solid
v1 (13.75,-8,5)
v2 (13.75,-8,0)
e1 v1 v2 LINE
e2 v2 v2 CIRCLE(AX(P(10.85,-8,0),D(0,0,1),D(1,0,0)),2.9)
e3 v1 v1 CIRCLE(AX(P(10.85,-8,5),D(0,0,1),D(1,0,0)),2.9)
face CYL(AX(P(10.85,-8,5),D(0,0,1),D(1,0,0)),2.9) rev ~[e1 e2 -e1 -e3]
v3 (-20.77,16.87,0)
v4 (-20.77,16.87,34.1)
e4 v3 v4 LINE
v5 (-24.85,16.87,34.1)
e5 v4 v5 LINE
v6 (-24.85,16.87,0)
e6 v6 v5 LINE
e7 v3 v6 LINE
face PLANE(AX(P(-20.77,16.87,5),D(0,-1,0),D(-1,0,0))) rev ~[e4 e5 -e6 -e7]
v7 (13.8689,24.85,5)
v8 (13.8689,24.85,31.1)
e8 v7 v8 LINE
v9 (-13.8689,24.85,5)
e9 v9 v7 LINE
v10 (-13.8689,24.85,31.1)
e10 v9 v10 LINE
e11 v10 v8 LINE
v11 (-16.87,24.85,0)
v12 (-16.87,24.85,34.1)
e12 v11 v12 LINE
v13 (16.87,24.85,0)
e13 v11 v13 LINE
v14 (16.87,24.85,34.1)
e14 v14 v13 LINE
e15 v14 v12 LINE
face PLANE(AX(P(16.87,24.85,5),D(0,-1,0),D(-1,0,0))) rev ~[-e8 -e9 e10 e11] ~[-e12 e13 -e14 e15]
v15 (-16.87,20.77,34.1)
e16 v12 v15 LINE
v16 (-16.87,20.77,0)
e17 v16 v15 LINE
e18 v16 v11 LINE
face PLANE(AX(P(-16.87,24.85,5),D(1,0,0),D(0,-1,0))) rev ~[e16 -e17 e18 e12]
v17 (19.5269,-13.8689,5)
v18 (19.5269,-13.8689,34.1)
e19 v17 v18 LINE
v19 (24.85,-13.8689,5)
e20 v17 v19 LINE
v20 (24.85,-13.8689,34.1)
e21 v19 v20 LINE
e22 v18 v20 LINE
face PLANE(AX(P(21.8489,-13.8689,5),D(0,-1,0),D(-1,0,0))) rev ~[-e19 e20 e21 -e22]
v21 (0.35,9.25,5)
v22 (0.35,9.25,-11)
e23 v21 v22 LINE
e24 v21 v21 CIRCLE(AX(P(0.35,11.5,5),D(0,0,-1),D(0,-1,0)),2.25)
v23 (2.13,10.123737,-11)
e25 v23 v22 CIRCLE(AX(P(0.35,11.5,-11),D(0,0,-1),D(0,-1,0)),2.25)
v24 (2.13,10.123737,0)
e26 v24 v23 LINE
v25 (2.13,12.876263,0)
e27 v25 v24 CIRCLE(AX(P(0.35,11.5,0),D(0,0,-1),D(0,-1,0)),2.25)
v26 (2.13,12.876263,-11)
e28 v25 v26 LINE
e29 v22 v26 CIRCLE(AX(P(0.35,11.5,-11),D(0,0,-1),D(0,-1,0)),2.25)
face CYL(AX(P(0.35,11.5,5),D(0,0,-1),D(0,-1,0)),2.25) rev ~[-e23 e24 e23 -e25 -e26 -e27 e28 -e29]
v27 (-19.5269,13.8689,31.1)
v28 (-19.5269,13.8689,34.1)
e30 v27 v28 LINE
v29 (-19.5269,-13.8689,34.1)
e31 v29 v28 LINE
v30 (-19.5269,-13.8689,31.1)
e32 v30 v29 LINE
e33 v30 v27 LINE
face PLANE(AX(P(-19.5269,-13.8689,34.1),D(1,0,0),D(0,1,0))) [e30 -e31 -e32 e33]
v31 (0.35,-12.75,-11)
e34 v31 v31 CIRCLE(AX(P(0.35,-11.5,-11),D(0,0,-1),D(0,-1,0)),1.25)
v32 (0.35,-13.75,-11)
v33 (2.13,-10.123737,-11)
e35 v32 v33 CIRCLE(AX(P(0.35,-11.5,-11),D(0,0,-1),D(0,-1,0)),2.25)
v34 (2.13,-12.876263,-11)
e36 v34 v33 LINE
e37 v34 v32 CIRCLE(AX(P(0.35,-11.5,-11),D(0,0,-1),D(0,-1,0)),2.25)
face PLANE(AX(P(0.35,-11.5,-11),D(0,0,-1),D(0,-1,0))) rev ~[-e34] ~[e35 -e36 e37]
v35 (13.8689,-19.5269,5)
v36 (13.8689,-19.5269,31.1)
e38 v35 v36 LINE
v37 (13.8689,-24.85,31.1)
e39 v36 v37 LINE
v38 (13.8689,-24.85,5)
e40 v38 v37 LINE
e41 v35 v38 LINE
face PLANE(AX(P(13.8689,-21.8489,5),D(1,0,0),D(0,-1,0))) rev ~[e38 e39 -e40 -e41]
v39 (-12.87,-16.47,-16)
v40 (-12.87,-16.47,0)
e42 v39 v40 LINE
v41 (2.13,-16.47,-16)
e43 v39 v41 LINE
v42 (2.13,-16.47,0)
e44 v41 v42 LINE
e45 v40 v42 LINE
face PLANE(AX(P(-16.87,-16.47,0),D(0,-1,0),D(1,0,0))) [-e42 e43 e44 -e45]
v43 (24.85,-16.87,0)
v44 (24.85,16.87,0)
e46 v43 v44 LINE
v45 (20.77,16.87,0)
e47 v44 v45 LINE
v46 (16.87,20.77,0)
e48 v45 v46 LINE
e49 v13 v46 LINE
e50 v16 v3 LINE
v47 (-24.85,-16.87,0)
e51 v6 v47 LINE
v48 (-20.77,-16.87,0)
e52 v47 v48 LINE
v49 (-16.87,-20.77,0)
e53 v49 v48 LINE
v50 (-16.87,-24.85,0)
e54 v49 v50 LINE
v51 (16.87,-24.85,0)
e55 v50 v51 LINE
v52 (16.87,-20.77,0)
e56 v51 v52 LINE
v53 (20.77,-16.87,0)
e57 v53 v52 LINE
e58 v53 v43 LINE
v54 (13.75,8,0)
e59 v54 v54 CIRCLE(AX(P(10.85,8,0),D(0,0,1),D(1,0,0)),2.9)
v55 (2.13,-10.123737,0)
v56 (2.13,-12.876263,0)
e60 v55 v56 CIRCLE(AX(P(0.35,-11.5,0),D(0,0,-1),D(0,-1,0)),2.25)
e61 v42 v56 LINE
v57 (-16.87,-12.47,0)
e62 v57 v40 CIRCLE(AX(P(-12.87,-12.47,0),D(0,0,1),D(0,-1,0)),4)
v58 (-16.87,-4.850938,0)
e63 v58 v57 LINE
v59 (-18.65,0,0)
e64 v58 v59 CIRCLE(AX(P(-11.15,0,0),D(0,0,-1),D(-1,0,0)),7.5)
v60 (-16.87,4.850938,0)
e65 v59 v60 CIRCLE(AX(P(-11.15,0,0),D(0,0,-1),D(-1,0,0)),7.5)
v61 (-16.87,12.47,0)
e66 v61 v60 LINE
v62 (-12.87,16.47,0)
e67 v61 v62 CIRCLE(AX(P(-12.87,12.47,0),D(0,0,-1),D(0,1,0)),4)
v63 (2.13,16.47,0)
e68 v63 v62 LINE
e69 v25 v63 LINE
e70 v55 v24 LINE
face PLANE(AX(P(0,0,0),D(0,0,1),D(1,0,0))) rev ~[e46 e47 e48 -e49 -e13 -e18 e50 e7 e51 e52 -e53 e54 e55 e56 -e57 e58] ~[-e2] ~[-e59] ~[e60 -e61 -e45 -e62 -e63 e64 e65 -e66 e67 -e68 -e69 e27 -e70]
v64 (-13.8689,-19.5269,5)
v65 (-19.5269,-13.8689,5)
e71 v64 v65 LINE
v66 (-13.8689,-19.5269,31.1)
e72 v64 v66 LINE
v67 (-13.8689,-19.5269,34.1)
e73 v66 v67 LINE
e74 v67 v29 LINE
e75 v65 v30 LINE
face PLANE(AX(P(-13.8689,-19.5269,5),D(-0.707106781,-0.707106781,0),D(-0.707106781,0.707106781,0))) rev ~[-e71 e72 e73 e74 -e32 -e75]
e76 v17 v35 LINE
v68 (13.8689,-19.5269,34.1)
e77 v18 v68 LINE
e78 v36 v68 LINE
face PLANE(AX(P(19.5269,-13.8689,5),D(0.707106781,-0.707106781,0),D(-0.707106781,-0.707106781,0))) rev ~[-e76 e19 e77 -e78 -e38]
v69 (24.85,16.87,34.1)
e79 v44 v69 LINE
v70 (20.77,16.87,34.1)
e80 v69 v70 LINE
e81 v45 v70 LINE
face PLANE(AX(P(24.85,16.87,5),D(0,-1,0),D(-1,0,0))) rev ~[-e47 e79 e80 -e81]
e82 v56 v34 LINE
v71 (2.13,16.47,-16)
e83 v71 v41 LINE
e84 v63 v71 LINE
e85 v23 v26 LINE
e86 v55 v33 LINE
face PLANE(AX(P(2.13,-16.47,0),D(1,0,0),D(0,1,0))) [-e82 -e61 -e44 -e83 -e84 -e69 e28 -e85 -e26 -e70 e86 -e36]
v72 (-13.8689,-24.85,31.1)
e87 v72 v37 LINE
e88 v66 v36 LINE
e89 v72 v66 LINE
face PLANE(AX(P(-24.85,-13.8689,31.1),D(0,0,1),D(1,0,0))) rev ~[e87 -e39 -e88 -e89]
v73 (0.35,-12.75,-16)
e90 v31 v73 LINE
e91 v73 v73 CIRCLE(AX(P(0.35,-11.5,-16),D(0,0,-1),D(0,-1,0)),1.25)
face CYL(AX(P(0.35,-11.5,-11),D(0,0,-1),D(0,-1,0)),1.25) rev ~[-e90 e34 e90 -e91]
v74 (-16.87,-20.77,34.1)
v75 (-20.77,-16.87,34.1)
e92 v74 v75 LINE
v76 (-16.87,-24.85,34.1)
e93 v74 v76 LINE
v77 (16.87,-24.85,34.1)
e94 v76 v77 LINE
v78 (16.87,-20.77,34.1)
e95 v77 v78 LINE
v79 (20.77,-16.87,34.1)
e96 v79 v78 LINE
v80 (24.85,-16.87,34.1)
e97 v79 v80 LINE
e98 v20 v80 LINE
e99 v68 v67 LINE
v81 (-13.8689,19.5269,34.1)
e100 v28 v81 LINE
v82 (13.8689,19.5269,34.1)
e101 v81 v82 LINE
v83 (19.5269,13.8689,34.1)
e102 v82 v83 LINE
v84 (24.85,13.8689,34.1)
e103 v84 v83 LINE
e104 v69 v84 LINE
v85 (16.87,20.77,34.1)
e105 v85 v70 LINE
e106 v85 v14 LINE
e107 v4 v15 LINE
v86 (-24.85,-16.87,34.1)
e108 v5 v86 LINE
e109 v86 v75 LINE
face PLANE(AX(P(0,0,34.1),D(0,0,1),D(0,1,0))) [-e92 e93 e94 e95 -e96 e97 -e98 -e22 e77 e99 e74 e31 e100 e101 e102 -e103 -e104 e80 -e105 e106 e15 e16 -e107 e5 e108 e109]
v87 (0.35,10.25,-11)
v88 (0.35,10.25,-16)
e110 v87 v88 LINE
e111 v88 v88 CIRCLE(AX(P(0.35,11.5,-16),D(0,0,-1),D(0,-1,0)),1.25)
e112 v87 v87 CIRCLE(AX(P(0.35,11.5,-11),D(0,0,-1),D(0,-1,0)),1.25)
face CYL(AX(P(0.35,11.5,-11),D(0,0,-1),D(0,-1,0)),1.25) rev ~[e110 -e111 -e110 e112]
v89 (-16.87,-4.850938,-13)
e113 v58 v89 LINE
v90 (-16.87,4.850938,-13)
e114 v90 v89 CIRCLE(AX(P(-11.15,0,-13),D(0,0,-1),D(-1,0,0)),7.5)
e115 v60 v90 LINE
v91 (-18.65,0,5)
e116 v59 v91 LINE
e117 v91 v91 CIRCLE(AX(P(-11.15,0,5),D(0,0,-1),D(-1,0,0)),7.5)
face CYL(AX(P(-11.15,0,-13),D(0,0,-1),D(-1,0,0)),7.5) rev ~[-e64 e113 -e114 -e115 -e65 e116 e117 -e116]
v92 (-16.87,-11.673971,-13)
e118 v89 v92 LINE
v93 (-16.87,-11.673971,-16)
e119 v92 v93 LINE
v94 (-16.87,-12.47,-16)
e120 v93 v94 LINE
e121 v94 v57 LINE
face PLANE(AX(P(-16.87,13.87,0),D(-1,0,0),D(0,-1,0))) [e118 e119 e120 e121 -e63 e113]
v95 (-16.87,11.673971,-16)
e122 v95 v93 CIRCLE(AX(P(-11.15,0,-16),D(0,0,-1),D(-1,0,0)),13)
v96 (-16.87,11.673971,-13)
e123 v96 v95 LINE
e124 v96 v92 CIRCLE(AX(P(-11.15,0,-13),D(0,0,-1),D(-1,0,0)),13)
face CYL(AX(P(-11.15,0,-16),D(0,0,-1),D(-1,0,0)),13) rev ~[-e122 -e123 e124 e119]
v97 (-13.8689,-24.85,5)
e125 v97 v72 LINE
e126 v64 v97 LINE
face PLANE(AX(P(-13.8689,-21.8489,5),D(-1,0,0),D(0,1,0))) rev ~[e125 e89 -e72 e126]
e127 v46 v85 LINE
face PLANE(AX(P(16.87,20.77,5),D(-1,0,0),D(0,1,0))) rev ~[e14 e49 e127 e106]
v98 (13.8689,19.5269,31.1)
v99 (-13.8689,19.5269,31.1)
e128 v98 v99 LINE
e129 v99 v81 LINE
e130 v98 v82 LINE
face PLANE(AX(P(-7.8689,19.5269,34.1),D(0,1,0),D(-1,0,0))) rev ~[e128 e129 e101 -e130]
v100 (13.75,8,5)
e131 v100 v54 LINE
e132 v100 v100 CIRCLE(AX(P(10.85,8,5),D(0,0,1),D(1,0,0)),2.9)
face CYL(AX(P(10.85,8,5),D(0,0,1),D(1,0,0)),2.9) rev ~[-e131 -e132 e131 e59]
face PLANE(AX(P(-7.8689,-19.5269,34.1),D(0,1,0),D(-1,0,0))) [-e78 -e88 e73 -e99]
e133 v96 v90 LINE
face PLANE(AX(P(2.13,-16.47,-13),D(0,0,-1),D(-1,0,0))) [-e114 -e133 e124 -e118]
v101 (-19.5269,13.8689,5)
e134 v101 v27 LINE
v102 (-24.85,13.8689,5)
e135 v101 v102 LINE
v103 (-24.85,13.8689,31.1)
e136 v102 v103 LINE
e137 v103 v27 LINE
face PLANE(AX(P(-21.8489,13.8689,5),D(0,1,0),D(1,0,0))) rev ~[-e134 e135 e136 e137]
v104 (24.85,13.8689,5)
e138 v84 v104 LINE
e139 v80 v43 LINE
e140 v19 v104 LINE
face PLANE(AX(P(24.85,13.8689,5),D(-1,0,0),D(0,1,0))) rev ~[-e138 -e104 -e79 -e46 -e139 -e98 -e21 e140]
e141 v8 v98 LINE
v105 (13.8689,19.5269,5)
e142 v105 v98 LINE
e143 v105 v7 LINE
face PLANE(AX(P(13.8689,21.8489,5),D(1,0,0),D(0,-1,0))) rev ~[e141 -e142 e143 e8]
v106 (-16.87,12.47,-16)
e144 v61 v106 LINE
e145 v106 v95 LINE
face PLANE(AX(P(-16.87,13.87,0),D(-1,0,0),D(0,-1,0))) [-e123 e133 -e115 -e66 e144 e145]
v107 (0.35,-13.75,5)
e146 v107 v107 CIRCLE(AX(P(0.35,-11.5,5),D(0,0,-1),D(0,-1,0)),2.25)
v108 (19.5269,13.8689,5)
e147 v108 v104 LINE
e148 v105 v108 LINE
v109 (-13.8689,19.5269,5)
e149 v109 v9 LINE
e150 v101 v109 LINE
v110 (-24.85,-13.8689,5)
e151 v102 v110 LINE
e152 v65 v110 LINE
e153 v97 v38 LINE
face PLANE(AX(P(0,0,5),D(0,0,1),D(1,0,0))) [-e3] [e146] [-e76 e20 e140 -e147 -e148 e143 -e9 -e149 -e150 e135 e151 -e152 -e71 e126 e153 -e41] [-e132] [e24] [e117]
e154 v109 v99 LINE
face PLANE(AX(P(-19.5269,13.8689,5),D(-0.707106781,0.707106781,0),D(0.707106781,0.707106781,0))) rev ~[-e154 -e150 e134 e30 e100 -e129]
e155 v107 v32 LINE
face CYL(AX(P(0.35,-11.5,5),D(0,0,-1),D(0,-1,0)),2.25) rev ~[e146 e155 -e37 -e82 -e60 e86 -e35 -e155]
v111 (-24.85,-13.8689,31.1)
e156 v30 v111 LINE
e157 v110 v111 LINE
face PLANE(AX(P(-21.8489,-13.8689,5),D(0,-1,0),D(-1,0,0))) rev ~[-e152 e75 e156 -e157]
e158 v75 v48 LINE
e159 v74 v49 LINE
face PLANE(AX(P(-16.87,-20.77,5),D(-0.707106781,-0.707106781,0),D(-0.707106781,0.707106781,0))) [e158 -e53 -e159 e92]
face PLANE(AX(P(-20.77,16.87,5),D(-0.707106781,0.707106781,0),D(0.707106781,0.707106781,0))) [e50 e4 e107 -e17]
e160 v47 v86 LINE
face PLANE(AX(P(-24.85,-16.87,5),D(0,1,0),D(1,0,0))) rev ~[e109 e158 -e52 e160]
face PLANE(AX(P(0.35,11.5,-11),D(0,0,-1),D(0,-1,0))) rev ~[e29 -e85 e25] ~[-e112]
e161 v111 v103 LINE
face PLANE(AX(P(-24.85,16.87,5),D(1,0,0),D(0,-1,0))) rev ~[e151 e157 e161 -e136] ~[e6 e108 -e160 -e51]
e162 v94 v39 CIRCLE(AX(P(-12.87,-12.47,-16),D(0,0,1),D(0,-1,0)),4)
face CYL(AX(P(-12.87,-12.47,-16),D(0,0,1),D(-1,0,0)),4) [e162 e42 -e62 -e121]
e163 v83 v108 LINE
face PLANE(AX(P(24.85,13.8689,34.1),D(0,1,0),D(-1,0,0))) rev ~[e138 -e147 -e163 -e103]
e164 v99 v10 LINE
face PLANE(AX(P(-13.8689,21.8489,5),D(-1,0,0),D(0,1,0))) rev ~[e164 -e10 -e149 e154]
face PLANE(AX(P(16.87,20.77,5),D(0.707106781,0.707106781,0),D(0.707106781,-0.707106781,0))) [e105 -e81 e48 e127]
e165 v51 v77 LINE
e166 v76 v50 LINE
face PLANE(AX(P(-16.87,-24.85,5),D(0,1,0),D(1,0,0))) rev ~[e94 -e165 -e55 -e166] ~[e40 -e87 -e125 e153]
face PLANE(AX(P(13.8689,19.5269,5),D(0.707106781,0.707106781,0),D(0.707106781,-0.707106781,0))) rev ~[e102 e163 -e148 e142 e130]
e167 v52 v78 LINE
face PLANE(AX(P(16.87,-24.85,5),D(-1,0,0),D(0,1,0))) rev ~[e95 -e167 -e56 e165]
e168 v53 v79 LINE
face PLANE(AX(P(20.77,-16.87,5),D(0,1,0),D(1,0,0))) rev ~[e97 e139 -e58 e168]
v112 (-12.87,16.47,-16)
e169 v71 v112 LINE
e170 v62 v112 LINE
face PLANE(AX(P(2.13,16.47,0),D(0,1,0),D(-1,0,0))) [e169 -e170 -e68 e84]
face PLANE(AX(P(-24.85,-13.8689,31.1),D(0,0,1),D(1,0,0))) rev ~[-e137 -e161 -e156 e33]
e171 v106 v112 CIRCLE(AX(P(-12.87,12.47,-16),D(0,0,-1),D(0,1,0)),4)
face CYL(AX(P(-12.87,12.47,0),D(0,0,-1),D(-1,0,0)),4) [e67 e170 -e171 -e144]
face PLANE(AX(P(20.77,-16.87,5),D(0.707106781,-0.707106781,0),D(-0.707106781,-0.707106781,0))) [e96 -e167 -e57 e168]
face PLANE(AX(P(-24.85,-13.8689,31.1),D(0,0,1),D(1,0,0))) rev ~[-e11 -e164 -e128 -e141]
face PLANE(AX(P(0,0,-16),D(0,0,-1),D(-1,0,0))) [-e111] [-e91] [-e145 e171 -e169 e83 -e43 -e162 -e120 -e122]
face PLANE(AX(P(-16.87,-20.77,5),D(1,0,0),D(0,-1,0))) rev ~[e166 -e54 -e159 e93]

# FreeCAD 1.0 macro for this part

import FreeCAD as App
import Part
import Sketcher
from FreeCAD import Vector
Q = App.Units.Quantity


def edges_at(feature, points):
    """Names of the edges that pass closest to the given points."""
    edges = feature.Shape.Edges
    near = lambda p: min(range(len(edges)), key=lambda i: edges[i].distToShape(Part.Vertex(*p))[0])
    return sorted({f"Edge{near(p) + 1}" for p in points})


def add_polygon(sketch, points):
    """Adds a closed chain of lines whose ends are joined by coincident constraints."""
    first, n = sketch.GeometryCount, len(points)
    for a, b in zip(points, points[1:] + points[:1]):
        sketch.addGeometry(Part.LineSegment(App.Vector(*a, 0), App.Vector(*b, 0)), False)
    for i in range(n):
        sketch.addConstraint(Sketcher.Constraint("Coincident", first + i, 2, first + (i + 1) % n, 1))

doc = App.newDocument("Part")
params = doc.addObject("Spreadsheet::Sheet", "Params")
for row, (alias, value) in enumerate([
    ("sketch1_width", "7.98 mm"),
    ("sketch1_width2", "33.74 mm"),
    ("pad1_length", "5 mm"),
    ("chamfer_size", "3.9 mm"),
    ("sketch2_width", "4.08 mm"),
    ("pad2_length", "29.1 mm"),
    ("sketch3_width", "4.08 mm"),
    ("sketch3_height", "33.74 mm"),
    ("pad3_length", "3 mm"),
    ("sketch4_width", "19 mm"),
    ("sketch4_height", "32.94 mm"),
    ("pad4_length", "16 mm"),
    ("pad4_length2", "5 mm"),
    ("sketch5_diameter", "2.5 mm"),
    ("hole_diameter", "2.5 mm"),
    ("hole_cbore_diameter", "4.5 mm"),
    ("hole_cbore_depth", "16 mm"),
    ("sketch6_diameter", "26 mm"),
    ("pocket1_length", "3 mm"),
    ("sketch7_diameter", "15 mm"),
    ("fillet_radius", "4 mm"),
    ("sketch8_diameter", "5.8 mm"),
    ("pocket3_length", "10 mm"),
    ("pocket4_length", "27 mm"),
], start=1):
    params.set(f"A{row}", alias)
    params.set(f"B{row}", "=" + value)
    params.setAlias(f"B{row}", alias)

body = doc.addObject("PartDesign::Body", "Body")

# Sketch on XY plane
sketch1 = body.newObject("Sketcher::SketchObject", "Sketch")
sketch1.AttachmentSupport = (doc.getObject("XY_Plane"), [""])
sketch1.MapMode = "FlatFace"
add_polygon(sketch1, [(25, -17), (25, 17), (17, 17), (17, 25), (-17, 25), (-17, 17), (-25, 17), (-25, -17), (-17, -17), (-17, -25), (17, -25), (17, -17)])  # lines 0-11
sketch1.addConstraint([
    Sketcher.Constraint("Vertical", 0),
    Sketcher.Constraint("Horizontal", 1),
    Sketcher.Constraint("Vertical", 2),
    Sketcher.Constraint("Horizontal", 3),
    Sketcher.Constraint("Vertical", 4),
    Sketcher.Constraint("Horizontal", 5),
    Sketcher.Constraint("Vertical", 6),
    Sketcher.Constraint("Horizontal", 7),
    Sketcher.Constraint("Vertical", 8),
    Sketcher.Constraint("Horizontal", 9),
    Sketcher.Constraint("Vertical", 10),
    Sketcher.Constraint("Horizontal", 11),
    Sketcher.Constraint("Symmetric", 0, 2, 6, 2, -1, 1),
    Sketcher.Constraint("Symmetric", 2, 2, 8, 2, -1, 1),
    Sketcher.Constraint("Symmetric", 4, 2, 10, 2, -1, 1),
    Sketcher.Constraint("Symmetric", 1, 2, 4, 2, -2),
    Sketcher.Constraint("Equal", 9, 0),
    Sketcher.Constraint("Equal", 11, 2),
    Sketcher.Constraint("DistanceX", 1, 2, 1, 1, Q("7.98 mm")),
    Sketcher.Constraint("DistanceX", 3, 2, 3, 1, Q("33.74 mm")),
])
sketch1.setExpression("Constraints[30]", "Params.sketch1_width")
sketch1.setExpression("Constraints[31]", "Params.sketch1_width2")
pad1 = body.newObject("PartDesign::Pad", "Pad")
pad1.Profile = sketch1
pad1.setExpression("Length", "Params.pad1_length")
doc.recompute()

chamfer = body.newObject("PartDesign::Chamfer", "Chamfer")
chamfer.Base = (pad1, edges_at(pad1, [
    (16.87, -16.87, 2.5),
    (-16.87, -16.87, 2.5),
    (-16.87, 16.87, 2.5),
    (16.87, 16.87, 2.5),
]))
chamfer.setExpression("Size", "Params.chamfer_size")

# Sketch on XY plane
sketch2 = body.newObject("Sketcher::SketchObject", "Sketch001")
sketch2.AttachmentSupport = (doc.getObject("XY_Plane"), [""])
sketch2.MapMode = "FlatFace"
sketch2.AttachmentOffset = App.Placement(Vector(0, 0, 5), App.Rotation())
add_polygon(sketch2, [(13.9, -24.9), (16.9, -24.9), (16.9, -20.8), (20.8, -16.9), (24.9, -16.9), (24.9, -13.9), (19.5, -13.9), (13.9, -19.5)])  # lines 0-7
sketch2.addConstraint([
    Sketcher.Constraint("Horizontal", 0),
    Sketcher.Constraint("Vertical", 1),
    Sketcher.Constraint("Horizontal", 3),
    Sketcher.Constraint("Vertical", 4),
    Sketcher.Constraint("Horizontal", 5),
    Sketcher.Constraint("Vertical", 7),
    Sketcher.Constraint("Parallel", 2, 6),
    Sketcher.Constraint("Equal", 3, 1),
    Sketcher.Constraint("Equal", 0, 4),
    Sketcher.Constraint("Equal", 5, 7),
    Sketcher.Constraint("DistanceX", 3, 1, 3, 2, Q("4.08 mm")),
    Sketcher.Constraint("DistanceX", 1, 2, 2, 2, Q("3.9 mm")),
    Sketcher.Constraint("DistanceX", 0, 1, 0, 2, Q("3.001 mm")),
    Sketcher.Constraint("DistanceX", 5, 2, 5, 1, Q("5.323 mm")),
    Sketcher.Constraint("DistanceX", -1, 1, 0, 2, Q("16.87 mm")),
    Sketcher.Constraint("DistanceY", 0, 2, -1, 1, Q("24.85 mm")),
])
sketch2.setExpression("Constraints[18]", "Params.sketch2_width")
pad2 = body.newObject("PartDesign::Pad", "Pad001")
pad2.Profile = sketch2
pad2.setExpression("Length", "Params.pad2_length")
doc.recompute()

polarpattern = body.newObject("PartDesign::PolarPattern", "PolarPattern")
polarpattern.Originals = [pad2]
polarpattern.Axis = (doc.getObject("Z_Axis"), [""])
polarpattern.Angle = 360
polarpattern.Occurrences = 4
body.Tip = polarpattern

# Sketch on XY plane
sketch3 = body.newObject("Sketcher::SketchObject", "Sketch002")
sketch3.AttachmentSupport = (doc.getObject("XY_Plane"), [""])
sketch3.MapMode = "FlatFace"
sketch3.AttachmentOffset = App.Placement(Vector(0, 0, 34.1), App.Rotation())
add_polygon(sketch3, [(-16.9, -24.9), (13.9, -24.9), (13.9, -19.5), (-13.9, -19.5), (-19.5, -13.9), (-19.5, 13.9), (-13.9, 19.5), (13.9, 19.5), (13.9, 24.9), (-16.9, 24.9), (-16.9, 20.8), (-20.8, 16.9), (-24.9, 16.9), (-24.9, -16.9), (-20.8, -16.9), (-16.9, -20.8)])  # lines 0-15
add_polygon(sketch3, [(19.5, -13.9), (24.9, -13.9), (24.9, 13.9), (19.5, 13.9)])  # lines 16-19
sketch3.addConstraint([
    Sketcher.Constraint("Horizontal", 0),
    Sketcher.Constraint("Vertical", 1),
    Sketcher.Constraint("Horizontal", 2),
    Sketcher.Constraint("Vertical", 4),
    Sketcher.Constraint("Horizontal", 6),
    Sketcher.Constraint("Vertical", 7),
    Sketcher.Constraint("Horizontal", 8),
    Sketcher.Constraint("Vertical", 9),
    Sketcher.Constraint("Horizontal", 11),
    Sketcher.Constraint("Vertical", 12),
    Sketcher.Constraint("Horizontal", 13),
    Sketcher.Constraint("Vertical", 15),
    Sketcher.Constraint("Horizontal", 16),
    Sketcher.Constraint("Vertical", 17),
    Sketcher.Constraint("Horizontal", 18),
    Sketcher.Constraint("Vertical", 19),
    Sketcher.Constraint("Symmetric", 1, 2, 5, 2, -1, 1),
    Sketcher.Constraint("Symmetric", 3, 2, 18, 2, -1, 1),
    Sketcher.Constraint("Symmetric", 0, 2, 7, 2, -1),
    Sketcher.Constraint("Symmetric", 10, 2, 13, 2, -1),
    Sketcher.Constraint("Symmetric", 9, 2, 14, 2, -1),
    Sketcher.Constraint("Perpendicular", 3, 5),
    Sketcher.Constraint("Parallel", 5, 10),
    Sketcher.Constraint("Perpendicular", 10, 14),
    Sketcher.Constraint("Horizontal", 3, 2, 16, 2),
    Sketcher.Constraint("Horizontal", 4, 2, 17, 2),
    Sketcher.Constraint("Equal", 18, 1),
    Sketcher.Constraint("Equal", 6, 4),
    Sketcher.Constraint("Equal", 13, 9),
    Sketcher.Constraint("DistanceX", 11, 2, 11, 1, Q("4.08 mm")),
    Sketcher.Constraint("DistanceY", 12, 2, 12, 1, Q("33.74 mm")),
    Sketcher.Constraint("DistanceY", 0, 2, 7, 2, Q("49.7 mm")),
    Sketcher.Constraint("DistanceX", 0, 1, 0, 2, Q("30.739 mm")),
    Sketcher.Constraint("DistanceX", 16, 1, 16, 2, Q("5.323 mm")),
    Sketcher.Constraint("DistanceX", 8, 2, -1, 1, Q("16.87 mm")),
])
sketch3.setExpression("Constraints[49]", "Params.sketch3_width")
sketch3.setExpression("Constraints[50]", "Params.sketch3_height")
pad3 = body.newObject("PartDesign::Pad", "Pad002")
pad3.Profile = sketch3
pad3.setExpression("Length", "Params.pad3_length")
pad3.Reversed = True

# Sketch on XY plane
sketch4 = body.newObject("Sketcher::SketchObject", "Sketch003")
sketch4.AttachmentSupport = (doc.getObject("XY_Plane"), [""])
sketch4.MapMode = "FlatFace"
add_polygon(sketch4, [(-17, -16), (-17, 16), (2, 16), (2, -16)])  # lines 0-3
sketch4.addConstraint([
    Sketcher.Constraint("Vertical", 0),
    Sketcher.Constraint("Horizontal", 1),
    Sketcher.Constraint("Vertical", 2),
    Sketcher.Constraint("Horizontal", 3),
    Sketcher.Constraint("DistanceX", 1, 1, 1, 2, Q("19 mm")),
    Sketcher.Constraint("DistanceY", 0, 1, 0, 2, Q("32.94 mm")),
    Sketcher.Constraint("DistanceX", 0, 2, -1, 1, Q("16.87 mm")),
    Sketcher.Constraint("DistanceY", -1, 1, 0, 2, Q("16.47 mm")),
])
sketch4.setExpression("Constraints[8]", "Params.sketch4_width")
sketch4.setExpression("Constraints[9]", "Params.sketch4_height")
pad4 = body.newObject("PartDesign::Pad", "Pad003")
pad4.Profile = sketch4
pad4.Type = "TwoLengths"
pad4.setExpression("Length", "Params.pad4_length")
pad4.setExpression("Length2", "Params.pad4_length2")
pad4.Reversed = True

# Sketch on XY plane
sketch5 = body.newObject("Sketcher::SketchObject", "Sketch004")
sketch5.AttachmentSupport = (doc.getObject("XY_Plane"), [""])
sketch5.MapMode = "FlatFace"
sketch5.AttachmentOffset = App.Placement(Vector(0, 0, 5), App.Rotation())
sketch5.addGeometry([
    Part.Circle(Vector(0.3, 11.5, 0), Vector(0, 0, 1), 1.2),
    Part.Circle(Vector(0.3, -11.5, 0), Vector(0, 0, 1), 1.2),
], False)
sketch5.addConstraint([
    Sketcher.Constraint("Equal", 0, 1),
    Sketcher.Constraint("Symmetric", 0, 3, 1, 3, -1),
    Sketcher.Constraint("Diameter", 0, Q("2.5 mm")),
    Sketcher.Constraint("DistanceY", 1, 3, 0, 3, Q("23 mm")),
    Sketcher.Constraint("DistanceX", -1, 1, 0, 3, Q("0.35 mm")),
])
sketch5.setExpression("Constraints[2]", "Params.sketch5_diameter")
doc.recompute()
hole = body.newObject("PartDesign::Hole", "Hole")
hole.Profile = sketch5
hole.ThreadType = "None"
hole.setExpression("Diameter", "Params.hole_diameter")
hole.DepthType = "ThroughAll"
hole.HoleCutType = "Counterbore"
hole.setExpression("HoleCutDiameter", "Params.hole_cbore_diameter")
hole.setExpression("HoleCutDepth", "Params.hole_cbore_depth")

# Sketch on XY plane
sketch6 = body.newObject("Sketcher::SketchObject", "Sketch005")
sketch6.AttachmentSupport = (doc.getObject("XY_Plane"), [""])
sketch6.MapMode = "FlatFace"
sketch6.AttachmentOffset = App.Placement(Vector(0, 0, -16), App.Rotation())
sketch6.addGeometry(Part.Circle(Vector(-11, 0, 0), Vector(0, 0, 1), 13), False)
sketch6.addConstraint([
    Sketcher.Constraint("PointOnObject", 0, 3, -1),
    Sketcher.Constraint("Diameter", 0, Q("26 mm")),
    Sketcher.Constraint("DistanceX", 0, 3, -1, 1, Q("11.15 mm")),
])
sketch6.setExpression("Constraints[1]", "Params.sketch6_diameter")
pocket1 = body.newObject("PartDesign::Pocket", "Pocket")
pocket1.Profile = sketch6
pocket1.setExpression("Length", "Params.pocket1_length")
pocket1.Reversed = True

# Sketch on XY plane
sketch7 = body.newObject("Sketcher::SketchObject", "Sketch006")
sketch7.AttachmentSupport = (doc.getObject("XY_Plane"), [""])
sketch7.MapMode = "FlatFace"
sketch7.AttachmentOffset = App.Placement(Vector(0, 0, -13), App.Rotation())
sketch7.addGeometry(Part.Circle(Vector(-11, 0, 0), Vector(0, 0, 1), 8), False)
sketch7.addConstraint([
    Sketcher.Constraint("PointOnObject", 0, 3, -1),
    Sketcher.Constraint("Diameter", 0, Q("15 mm")),
    Sketcher.Constraint("DistanceX", 0, 3, -1, 1, Q("11.15 mm")),
])
sketch7.setExpression("Constraints[1]", "Params.sketch7_diameter")
pocket2 = body.newObject("PartDesign::Pocket", "Pocket001")
pocket2.Profile = sketch7
pocket2.Type = "UpToFirst"
pocket2.Reversed = True
doc.recompute()

fillet = body.newObject("PartDesign::Fillet", "Fillet")
fillet.Base = (pocket2, edges_at(pocket2, [(-16.87, -16.47, -8), (-16.87, 16.47, -8)]))
fillet.setExpression("Radius", "Params.fillet_radius")

# Sketch on XY plane
sketch8 = body.newObject("Sketcher::SketchObject", "Sketch007")
sketch8.AttachmentSupport = (doc.getObject("XY_Plane"), [""])
sketch8.MapMode = "FlatFace"
sketch8.AttachmentOffset = App.Placement(Vector(0, 0, 5), App.Rotation())
sketch8.addGeometry([
    Part.Circle(Vector(10.8, -8, 0), Vector(0, 0, 1), 2.9),
    Part.Circle(Vector(10.8, 8, 0), Vector(0, 0, 1), 2.9),
], False)
sketch8.addConstraint([
    Sketcher.Constraint("Equal", 0, 1),
    Sketcher.Constraint("Symmetric", 0, 3, 1, 3, -1),
    Sketcher.Constraint("Diameter", 0, Q("5.8 mm")),
    Sketcher.Constraint("DistanceY", 0, 3, -1, 1, Q("8 mm")),
    Sketcher.Constraint("DistanceX", -1, 1, 0, 3, Q("10.85 mm")),
])
sketch8.setExpression("Constraints[2]", "Params.sketch8_diameter")
pocket3 = body.newObject("PartDesign::Pocket", "Pocket002")
pocket3.Profile = sketch8
pocket3.setExpression("Length", "Params.pocket3_length")

# Sketch on XY plane
sketch9 = body.newObject("Sketcher::SketchObject", "Sketch008")
sketch9.AttachmentSupport = (doc.getObject("XY_Plane"), [""])
sketch9.MapMode = "FlatFace"
sketch9.AttachmentOffset = App.Placement(Vector(0, 0, 34.1), App.Rotation())
add_polygon(sketch9, [(25, -14), (25, 14), (20, 14), (20, -14)])  # lines 0-3
sketch9.addConstraint([
    Sketcher.Constraint("Vertical", 0),
    Sketcher.Constraint("Horizontal", 1),
    Sketcher.Constraint("Vertical", 2),
    Sketcher.Constraint("Horizontal", 3),
    Sketcher.Constraint("DistanceX", 1, 2, 1, 1, Q("5.323 mm")),
    Sketcher.Constraint("DistanceX", -1, 1, 0, 2, Q("24.85 mm")),
    Sketcher.Constraint("DistanceY", 0, 1, 0, 2, Q("27.7378 mm")),
    Sketcher.Constraint("DistanceY", -1, 1, 0, 2, Q("13.869 mm")),
])
pocket4 = body.newObject("PartDesign::Pocket", "Pocket003")
pocket4.Profile = sketch9
pocket4.setExpression("Length", "Params.pocket4_length")

doc.recompute()
